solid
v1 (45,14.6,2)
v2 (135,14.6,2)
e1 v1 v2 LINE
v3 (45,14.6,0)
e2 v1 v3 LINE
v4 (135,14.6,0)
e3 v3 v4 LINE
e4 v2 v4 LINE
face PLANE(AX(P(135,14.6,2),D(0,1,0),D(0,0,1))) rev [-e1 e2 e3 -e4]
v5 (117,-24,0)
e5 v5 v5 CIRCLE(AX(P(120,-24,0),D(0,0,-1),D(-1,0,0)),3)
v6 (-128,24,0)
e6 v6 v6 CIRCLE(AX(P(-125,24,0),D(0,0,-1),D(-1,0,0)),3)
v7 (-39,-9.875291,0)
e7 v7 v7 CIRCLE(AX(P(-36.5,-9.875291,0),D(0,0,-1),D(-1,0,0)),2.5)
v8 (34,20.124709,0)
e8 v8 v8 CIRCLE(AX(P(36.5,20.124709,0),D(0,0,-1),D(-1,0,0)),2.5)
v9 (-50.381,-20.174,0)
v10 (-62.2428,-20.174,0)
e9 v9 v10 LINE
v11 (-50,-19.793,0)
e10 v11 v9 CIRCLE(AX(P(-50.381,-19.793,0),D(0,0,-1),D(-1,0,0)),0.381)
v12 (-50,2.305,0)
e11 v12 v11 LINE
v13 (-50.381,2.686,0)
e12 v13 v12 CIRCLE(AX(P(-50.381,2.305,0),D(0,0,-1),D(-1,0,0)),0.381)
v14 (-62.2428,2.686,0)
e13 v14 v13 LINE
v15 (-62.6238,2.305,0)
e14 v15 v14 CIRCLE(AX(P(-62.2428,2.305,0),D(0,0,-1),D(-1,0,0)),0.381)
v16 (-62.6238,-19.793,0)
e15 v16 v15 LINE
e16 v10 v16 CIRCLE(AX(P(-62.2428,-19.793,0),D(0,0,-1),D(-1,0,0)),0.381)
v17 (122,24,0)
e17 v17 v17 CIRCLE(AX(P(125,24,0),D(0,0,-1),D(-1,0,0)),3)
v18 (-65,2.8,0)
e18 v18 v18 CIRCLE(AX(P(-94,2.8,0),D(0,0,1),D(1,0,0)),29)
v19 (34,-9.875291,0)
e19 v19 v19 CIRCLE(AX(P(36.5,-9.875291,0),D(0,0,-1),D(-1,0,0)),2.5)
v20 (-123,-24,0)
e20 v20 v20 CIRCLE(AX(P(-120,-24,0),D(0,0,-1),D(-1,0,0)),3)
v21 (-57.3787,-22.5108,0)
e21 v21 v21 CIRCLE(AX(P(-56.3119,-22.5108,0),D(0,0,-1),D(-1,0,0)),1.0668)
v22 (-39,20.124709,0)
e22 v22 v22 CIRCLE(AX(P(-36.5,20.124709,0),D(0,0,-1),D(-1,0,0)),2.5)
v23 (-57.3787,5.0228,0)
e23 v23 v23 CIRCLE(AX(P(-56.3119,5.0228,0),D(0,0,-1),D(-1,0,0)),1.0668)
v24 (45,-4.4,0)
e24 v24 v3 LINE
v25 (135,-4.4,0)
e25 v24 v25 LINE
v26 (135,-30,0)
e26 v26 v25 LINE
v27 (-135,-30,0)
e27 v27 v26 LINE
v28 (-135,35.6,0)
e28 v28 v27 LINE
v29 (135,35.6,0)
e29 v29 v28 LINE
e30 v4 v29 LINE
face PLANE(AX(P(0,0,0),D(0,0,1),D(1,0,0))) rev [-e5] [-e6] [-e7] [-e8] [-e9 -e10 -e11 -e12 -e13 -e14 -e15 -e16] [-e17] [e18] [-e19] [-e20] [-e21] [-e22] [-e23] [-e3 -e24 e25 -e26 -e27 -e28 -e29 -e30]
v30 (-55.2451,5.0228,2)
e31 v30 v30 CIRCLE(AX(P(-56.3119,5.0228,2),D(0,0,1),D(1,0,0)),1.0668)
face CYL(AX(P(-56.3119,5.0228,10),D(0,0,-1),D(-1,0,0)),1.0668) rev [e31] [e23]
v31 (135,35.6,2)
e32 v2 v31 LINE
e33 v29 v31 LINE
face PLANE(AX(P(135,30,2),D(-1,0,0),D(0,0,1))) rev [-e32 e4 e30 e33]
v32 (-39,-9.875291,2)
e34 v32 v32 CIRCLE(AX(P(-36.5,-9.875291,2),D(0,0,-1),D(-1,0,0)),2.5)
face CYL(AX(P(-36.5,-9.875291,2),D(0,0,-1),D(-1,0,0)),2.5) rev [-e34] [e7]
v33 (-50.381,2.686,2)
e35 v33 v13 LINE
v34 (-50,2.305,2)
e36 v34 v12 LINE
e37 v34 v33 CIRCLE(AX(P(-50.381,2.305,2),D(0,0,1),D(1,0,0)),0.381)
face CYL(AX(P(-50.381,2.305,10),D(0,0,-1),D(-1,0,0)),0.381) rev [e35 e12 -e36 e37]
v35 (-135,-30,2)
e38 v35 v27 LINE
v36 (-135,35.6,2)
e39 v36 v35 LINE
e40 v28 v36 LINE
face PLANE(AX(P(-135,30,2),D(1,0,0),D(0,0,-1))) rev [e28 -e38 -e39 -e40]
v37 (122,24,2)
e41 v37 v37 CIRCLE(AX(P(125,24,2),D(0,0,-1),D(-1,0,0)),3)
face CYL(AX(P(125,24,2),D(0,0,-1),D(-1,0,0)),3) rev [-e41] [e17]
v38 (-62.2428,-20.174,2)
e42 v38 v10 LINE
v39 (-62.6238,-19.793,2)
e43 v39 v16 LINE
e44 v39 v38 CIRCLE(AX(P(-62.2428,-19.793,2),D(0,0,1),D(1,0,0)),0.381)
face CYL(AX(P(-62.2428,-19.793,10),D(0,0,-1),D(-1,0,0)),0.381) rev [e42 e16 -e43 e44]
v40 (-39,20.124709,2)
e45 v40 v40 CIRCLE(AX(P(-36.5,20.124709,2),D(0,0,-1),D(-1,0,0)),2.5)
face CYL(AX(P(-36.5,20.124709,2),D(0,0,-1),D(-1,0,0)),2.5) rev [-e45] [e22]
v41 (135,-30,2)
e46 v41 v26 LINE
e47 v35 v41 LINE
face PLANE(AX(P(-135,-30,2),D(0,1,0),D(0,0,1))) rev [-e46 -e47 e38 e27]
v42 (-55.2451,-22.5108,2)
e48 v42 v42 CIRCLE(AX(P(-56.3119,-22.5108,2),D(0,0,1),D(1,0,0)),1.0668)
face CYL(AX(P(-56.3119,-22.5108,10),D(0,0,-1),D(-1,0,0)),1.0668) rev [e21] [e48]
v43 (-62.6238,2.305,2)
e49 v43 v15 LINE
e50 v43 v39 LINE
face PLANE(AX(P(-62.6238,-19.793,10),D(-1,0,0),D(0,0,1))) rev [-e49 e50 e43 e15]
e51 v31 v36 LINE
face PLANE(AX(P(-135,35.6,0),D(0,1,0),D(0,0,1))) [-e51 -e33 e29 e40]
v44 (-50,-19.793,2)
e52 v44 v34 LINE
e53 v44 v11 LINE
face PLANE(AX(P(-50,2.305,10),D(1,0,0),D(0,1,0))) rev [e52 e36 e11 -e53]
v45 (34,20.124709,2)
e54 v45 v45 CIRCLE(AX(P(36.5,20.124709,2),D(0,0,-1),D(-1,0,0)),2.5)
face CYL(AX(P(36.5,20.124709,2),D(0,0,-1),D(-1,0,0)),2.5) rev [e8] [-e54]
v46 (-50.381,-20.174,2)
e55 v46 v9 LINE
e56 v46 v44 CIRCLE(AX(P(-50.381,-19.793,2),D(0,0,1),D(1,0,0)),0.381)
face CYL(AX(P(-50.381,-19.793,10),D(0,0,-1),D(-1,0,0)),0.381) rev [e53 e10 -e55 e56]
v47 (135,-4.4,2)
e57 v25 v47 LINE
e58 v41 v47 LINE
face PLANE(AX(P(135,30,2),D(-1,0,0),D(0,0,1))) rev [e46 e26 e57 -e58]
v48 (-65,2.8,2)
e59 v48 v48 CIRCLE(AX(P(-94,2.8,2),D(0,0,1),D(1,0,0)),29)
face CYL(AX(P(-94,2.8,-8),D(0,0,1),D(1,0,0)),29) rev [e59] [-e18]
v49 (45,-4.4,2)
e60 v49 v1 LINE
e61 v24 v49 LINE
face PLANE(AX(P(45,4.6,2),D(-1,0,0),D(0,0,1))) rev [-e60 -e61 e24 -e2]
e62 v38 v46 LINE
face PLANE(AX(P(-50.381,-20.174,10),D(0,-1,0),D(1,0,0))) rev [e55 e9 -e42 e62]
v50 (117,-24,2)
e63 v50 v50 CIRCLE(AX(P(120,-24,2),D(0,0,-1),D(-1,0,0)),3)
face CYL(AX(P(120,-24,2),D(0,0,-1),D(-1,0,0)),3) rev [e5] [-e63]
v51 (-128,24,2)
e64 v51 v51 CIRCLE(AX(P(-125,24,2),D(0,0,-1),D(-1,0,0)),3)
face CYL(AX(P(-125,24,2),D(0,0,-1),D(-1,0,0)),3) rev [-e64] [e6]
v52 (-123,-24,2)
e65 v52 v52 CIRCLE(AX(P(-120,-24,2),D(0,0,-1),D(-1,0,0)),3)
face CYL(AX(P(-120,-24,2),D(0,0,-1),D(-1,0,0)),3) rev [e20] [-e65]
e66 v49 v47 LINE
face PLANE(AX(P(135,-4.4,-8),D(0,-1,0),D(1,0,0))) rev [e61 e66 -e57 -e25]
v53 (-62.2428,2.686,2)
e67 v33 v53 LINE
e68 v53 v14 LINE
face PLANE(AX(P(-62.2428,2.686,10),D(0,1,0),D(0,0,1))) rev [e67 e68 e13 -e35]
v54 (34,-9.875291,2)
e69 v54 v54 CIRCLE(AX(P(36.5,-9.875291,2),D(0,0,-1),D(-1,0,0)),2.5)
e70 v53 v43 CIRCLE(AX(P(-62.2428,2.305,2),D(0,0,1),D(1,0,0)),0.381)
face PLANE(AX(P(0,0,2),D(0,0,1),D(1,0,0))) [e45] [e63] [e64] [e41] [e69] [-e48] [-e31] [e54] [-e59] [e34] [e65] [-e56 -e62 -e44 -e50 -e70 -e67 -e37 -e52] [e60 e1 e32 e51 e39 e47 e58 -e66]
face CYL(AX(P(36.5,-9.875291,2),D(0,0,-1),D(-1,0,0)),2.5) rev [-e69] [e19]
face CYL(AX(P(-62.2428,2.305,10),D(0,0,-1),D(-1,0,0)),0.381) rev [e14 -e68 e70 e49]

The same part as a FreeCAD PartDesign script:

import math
import FreeCAD as App
import Part
import Sketcher

doc = App.newDocument("Part")
body = doc.addObject("PartDesign::Body", "Body")

# Sketch on XY plane
sketch1 = body.newObject("Sketcher::SketchObject", "Sketch")
sketch1.AttachmentSupport = (doc.getObject("XY_Plane"), [""])
sketch1.MapMode = "FlatFace"
sketch1.addGeometry(Part.LineSegment(App.Vector(-135, 30, 0), App.Vector(-135, -30, 0)), False)
sketch1.addGeometry(Part.LineSegment(App.Vector(-135, -30, 0), App.Vector(135, -30, 0)), False)
sketch1.addGeometry(Part.LineSegment(App.Vector(135, -30, 0), App.Vector(135, 30, 0)), False)
sketch1.addGeometry(Part.LineSegment(App.Vector(135, 30, 0), App.Vector(-135, 30, 0)), False)
sketch1.addConstraint(Sketcher.Constraint("Coincident", 0, 2, 1, 1))
sketch1.addConstraint(Sketcher.Constraint("Coincident", 1, 2, 2, 1))
sketch1.addConstraint(Sketcher.Constraint("Coincident", 2, 2, 3, 1))
sketch1.addConstraint(Sketcher.Constraint("Coincident", 3, 2, 0, 1))
sketch1.addConstraint(Sketcher.Constraint("Vertical", 0))
sketch1.addConstraint(Sketcher.Constraint("Horizontal", 1))
sketch1.addConstraint(Sketcher.Constraint("Vertical", 2))
sketch1.addConstraint(Sketcher.Constraint("Horizontal", 3))
sketch1.addConstraint(Sketcher.Constraint("Symmetric", 0, 2, 2, 2, -1, 1))
sketch1.addConstraint(Sketcher.Constraint("DistanceX", 1, 1, 1, 2, 270.0))
sketch1.addConstraint(Sketcher.Constraint("DistanceY", 0, 2, 0, 1, 60.0))
pad1 = body.newObject("PartDesign::Pad", "Pad")
pad1.Profile = sketch1
pad1.Length = 2

# Sketch on XY plane
sketch2 = body.newObject("Sketcher::SketchObject", "Sketch001")
sketch2.AttachmentSupport = (doc.getObject("XY_Plane"), [""])
sketch2.MapMode = "FlatFace"
sketch2.AttachmentOffset = App.Placement(App.Vector(0, 0, 2), App.Rotation())
sketch2.addGeometry(Part.LineSegment(App.Vector(-135, 36, 0), App.Vector(-135, 30, 0)), False)
sketch2.addGeometry(Part.LineSegment(App.Vector(-135, 30, 0), App.Vector(135, 30, 0)), False)
sketch2.addGeometry(Part.LineSegment(App.Vector(135, 30, 0), App.Vector(135, 36, 0)), False)
sketch2.addGeometry(Part.LineSegment(App.Vector(135, 36, 0), App.Vector(-135, 36, 0)), False)
sketch2.addConstraint(Sketcher.Constraint("Coincident", 0, 2, 1, 1))
sketch2.addConstraint(Sketcher.Constraint("Coincident", 1, 2, 2, 1))
sketch2.addConstraint(Sketcher.Constraint("Coincident", 2, 2, 3, 1))
sketch2.addConstraint(Sketcher.Constraint("Coincident", 3, 2, 0, 1))
sketch2.addConstraint(Sketcher.Constraint("Vertical", 0))
sketch2.addConstraint(Sketcher.Constraint("Horizontal", 1))
sketch2.addConstraint(Sketcher.Constraint("Vertical", 2))
sketch2.addConstraint(Sketcher.Constraint("Horizontal", 3))
sketch2.addConstraint(Sketcher.Constraint("DistanceX", 1, 1, 1, 2, 270.0))
sketch2.addConstraint(Sketcher.Constraint("DistanceY", 0, 2, 0, 1, 5.6))
sketch2.addConstraint(Sketcher.Constraint("DistanceX", 0, 2, -1, 1, 135.0))
sketch2.addConstraint(Sketcher.Constraint("DistanceY", -1, 1, 0, 2, 30.0))
pad2 = body.newObject("PartDesign::Pad", "Pad001")
pad2.Profile = sketch2
pad2.Length = 2
pad2.Reversed = True

# Sketch on XY plane
sketch3 = body.newObject("Sketcher::SketchObject", "Sketch002")
sketch3.AttachmentSupport = (doc.getObject("XY_Plane"), [""])
sketch3.MapMode = "FlatFace"
sketch3.addGeometry(Part.Circle(App.Vector(36.5, 20.1, 0), App.Vector(0, 0, 1), 2.5), False)
sketch3.addGeometry(Part.Circle(App.Vector(36.5, -9.9, 0), App.Vector(0, 0, 1), 2.5), False)
sketch3.addGeometry(Part.Circle(App.Vector(-36.5, -9.9, 0), App.Vector(0, 0, 1), 2.5), False)
sketch3.addGeometry(Part.Circle(App.Vector(-36.5, 20.1, 0), App.Vector(0, 0, 1), 2.5), False)
sketch3.addGeometry(Part.Circle(App.Vector(-125, 24, 0), App.Vector(0, 0, 1), 3), False)
sketch3.addGeometry(Part.Circle(App.Vector(-120, -24, 0), App.Vector(0, 0, 1), 3), False)
sketch3.addGeometry(Part.Circle(App.Vector(125, 24, 0), App.Vector(0, 0, 1), 3), False)
sketch3.addGeometry(Part.Circle(App.Vector(120, -24, 0), App.Vector(0, 0, 1), 3), False)
sketch3.addConstraint(Sketcher.Constraint("Equal", 0, 1))
sketch3.addConstraint(Sketcher.Constraint("Equal", 1, 2))
sketch3.addConstraint(Sketcher.Constraint("Equal", 2, 3))
sketch3.addConstraint(Sketcher.Constraint("Equal", 4, 5))
sketch3.addConstraint(Sketcher.Constraint("Equal", 5, 6))
sketch3.addConstraint(Sketcher.Constraint("Equal", 6, 7))
sketch3.addConstraint(Sketcher.Constraint("Symmetric", 1, 3, 2, 3, -2))
sketch3.addConstraint(Sketcher.Constraint("Symmetric", 0, 3, 3, 3, -2))
sketch3.addConstraint(Sketcher.Constraint("Symmetric", 4, 3, 6, 3, -2))
sketch3.addConstraint(Sketcher.Constraint("Symmetric", 5, 3, 7, 3, -2))
sketch3.addConstraint(Sketcher.Constraint("Vertical", 0, 3, 1, 3))
sketch3.addConstraint(Sketcher.Constraint("Diameter", 0, 5.0))
sketch3.addConstraint(Sketcher.Constraint("Diameter", 4, 6.0))
sketch3.addConstraint(Sketcher.Constraint("DistanceX", 4, 3, -1, 1, 125.0))
sketch3.addConstraint(Sketcher.Constraint("DistanceY", -1, 1, 4, 3, 24.0))
sketch3.addConstraint(Sketcher.Constraint("DistanceX", 5, 3, -1, 1, 120.0))
sketch3.addConstraint(Sketcher.Constraint("DistanceY", 5, 3, -1, 1, 24.0))
sketch3.addConstraint(Sketcher.Constraint("DistanceY", 1, 3, 0, 3, 30.0))
sketch3.addConstraint(Sketcher.Constraint("DistanceX", 2, 3, 1, 3, 73.0))
sketch3.addConstraint(Sketcher.Constraint("DistanceY", -1, 1, 0, 3, 20.124709))
pocket1 = body.newObject("PartDesign::Pocket", "Pocket")
pocket1.Profile = sketch3
pocket1.Type = "ThroughAll"
pocket1.Reversed = True

# Sketch on XY plane
sketch4 = body.newObject("Sketcher::SketchObject", "Sketch003")
sketch4.AttachmentSupport = (doc.getObject("XY_Plane"), [""])
sketch4.MapMode = "FlatFace"
sketch4.addGeometry(Part.LineSegment(App.Vector(135, 15, 0), App.Vector(135, 5, 0)), False)
sketch4.addGeometry(Part.LineSegment(App.Vector(135, 5, 0), App.Vector(45, 5, 0)), False)
sketch4.addGeometry(Part.LineSegment(App.Vector(45, 5, 0), App.Vector(45, 15, 0)), False)
sketch4.addGeometry(Part.LineSegment(App.Vector(45, 15, 0), App.Vector(135, 15, 0)), False)
sketch4.addConstraint(Sketcher.Constraint("Coincident", 0, 2, 1, 1))
sketch4.addConstraint(Sketcher.Constraint("Coincident", 1, 2, 2, 1))
sketch4.addConstraint(Sketcher.Constraint("Coincident", 2, 2, 3, 1))
sketch4.addConstraint(Sketcher.Constraint("Coincident", 3, 2, 0, 1))
sketch4.addConstraint(Sketcher.Constraint("Vertical", 0))
sketch4.addConstraint(Sketcher.Constraint("Horizontal", 1))
sketch4.addConstraint(Sketcher.Constraint("Vertical", 2))
sketch4.addConstraint(Sketcher.Constraint("Horizontal", 3))
sketch4.addConstraint(Sketcher.Constraint("DistanceX", 1, 2, 1, 1, 90.0))
sketch4.addConstraint(Sketcher.Constraint("DistanceY", 0, 2, 0, 1, 10.0))
sketch4.addConstraint(Sketcher.Constraint("DistanceX", -1, 1, 0, 2, 135.0))
sketch4.addConstraint(Sketcher.Constraint("DistanceY", -1, 1, 0, 2, 4.6))
pocket2 = body.newObject("PartDesign::Pocket", "Pocket001")
pocket2.Profile = sketch4
pocket2.Type = "ThroughAll"
pocket2.Reversed = True

# Sketch on XY plane
sketch5 = body.newObject("Sketcher::SketchObject", "Sketch004")
sketch5.AttachmentSupport = (doc.getObject("XY_Plane"), [""])
sketch5.MapMode = "FlatFace"
sketch5.AttachmentOffset = App.Placement(App.Vector(0, 0, 2), App.Rotation())
sketch5.addGeometry(Part.Circle(App.Vector(-94, 3, 0), App.Vector(0, 0, 1), 29), False)
sketch5.addConstraint(Sketcher.Constraint("Diameter", 0, 58.0))
sketch5.addConstraint(Sketcher.Constraint("DistanceX", 0, 3, -1, 1, 94.0))
sketch5.addConstraint(Sketcher.Constraint("DistanceY", -1, 1, 0, 3, 2.8))
pocket3 = body.newObject("PartDesign::Pocket", "Pocket002")
pocket3.Profile = sketch5
pocket3.Length = 10

# Sketch on XY plane
sketch6 = body.newObject("Sketcher::SketchObject", "Sketch005")
sketch6.AttachmentSupport = (doc.getObject("XY_Plane"), [""])
sketch6.MapMode = "FlatFace"
sketch6.addGeometry(Part.Circle(App.Vector(-56.31, -22.51, 0), App.Vector(0, 0, 1), 1.07), False)
sketch6.addGeometry(Part.Circle(App.Vector(-56.31, 5.02, 0), App.Vector(0, 0, 1), 1.07), False)
sketch6.addGeometry(Part.LineSegment(App.Vector(-62.62, -19.79, 0), App.Vector(-62.62, 2.31, 0)), False)
sketch6.addGeometry(Part.ArcOfCircle(Part.Circle(App.Vector(-62.24, 2.31, 0), App.Vector(0, 0, 1), 0.38), math.radians(90), math.radians(180)), False)
sketch6.addGeometry(Part.LineSegment(App.Vector(-62.24, 2.69, 0), App.Vector(-50.38, 2.69, 0)), False)
sketch6.addGeometry(Part.ArcOfCircle(Part.Circle(App.Vector(-50.38, 2.31, 0), App.Vector(0, 0, 1), 0.38), math.radians(0), math.radians(90)), False)
sketch6.addGeometry(Part.LineSegment(App.Vector(-50, 2.31, 0), App.Vector(-50, -19.79, 0)), False)
sketch6.addGeometry(Part.ArcOfCircle(Part.Circle(App.Vector(-50.38, -19.79, 0), App.Vector(0, 0, 1), 0.38), math.radians(-90), math.radians(0)), False)
sketch6.addGeometry(Part.LineSegment(App.Vector(-50.38, -20.17, 0), App.Vector(-62.24, -20.17, 0)), False)
sketch6.addGeometry(Part.ArcOfCircle(Part.Circle(App.Vector(-62.24, -19.79, 0), App.Vector(0, 0, 1), 0.38), math.radians(180), math.radians(270)), False)
sketch6.addConstraint(Sketcher.Constraint("Tangent", 2, 2, 3, 2))
sketch6.addConstraint(Sketcher.Constraint("Tangent", 3, 1, 4, 1))
sketch6.addConstraint(Sketcher.Constraint("Tangent", 4, 2, 5, 2))
sketch6.addConstraint(Sketcher.Constraint("Tangent", 5, 1, 6, 1))
sketch6.addConstraint(Sketcher.Constraint("Tangent", 6, 2, 7, 2))
sketch6.addConstraint(Sketcher.Constraint("Tangent", 7, 1, 8, 1))
sketch6.addConstraint(Sketcher.Constraint("Tangent", 8, 2, 9, 2))
sketch6.addConstraint(Sketcher.Constraint("Tangent", 9, 1, 2, 1))
sketch6.addConstraint(Sketcher.Constraint("Vertical", 2))
sketch6.addConstraint(Sketcher.Constraint("Horizontal", 4))
sketch6.addConstraint(Sketcher.Constraint("Vertical", 6))
sketch6.addConstraint(Sketcher.Constraint("Horizontal", 8))
sketch6.addConstraint(Sketcher.Constraint("Equal", 0, 1))
sketch6.addConstraint(Sketcher.Constraint("Equal", 3, 5))
sketch6.addConstraint(Sketcher.Constraint("Equal", 5, 7))
sketch6.addConstraint(Sketcher.Constraint("Equal", 7, 9))
sketch6.addConstraint(Sketcher.Constraint("Vertical", 0, 3, 1, 3))
sketch6.addConstraint(Sketcher.Constraint("DistanceX", 5, 1, -1, 1, 50.0))
sketch6.addConstraint(Sketcher.Constraint("Radius", 3, 0.381))
sketch6.addConstraint(Sketcher.Constraint("Diameter", 0, 2.1336))
sketch6.addConstraint(Sketcher.Constraint("DistanceY", 2, 1, 2, 2, 22.098))
sketch6.addConstraint(Sketcher.Constraint("DistanceX", 4, 1, 4, 2, 11.8618))
sketch6.addConstraint(Sketcher.Constraint("DistanceY", -1, 1, 3, 3, 2.305))
sketch6.addConstraint(Sketcher.Constraint("DistanceX", 0, 3, -1, 1, 56.3119))
sketch6.addConstraint(Sketcher.Constraint("DistanceY", 0, 3, -1, 1, 22.5108))
sketch6.addConstraint(Sketcher.Constraint("DistanceY", -1, 1, 1, 3, 5.0228))
pocket4 = body.newObject("PartDesign::Pocket", "Pocket003")
pocket4.Profile = sketch6
pocket4.Length = 10
pocket4.Reversed = True

# Sketch on XY plane
sketch7 = body.newObject("Sketcher::SketchObject", "Sketch006")
sketch7.AttachmentSupport = (doc.getObject("XY_Plane"), [""])
sketch7.MapMode = "FlatFace"
sketch7.AttachmentOffset = App.Placement(App.Vector(0, 0, 2), App.Rotation())
sketch7.addGeometry(Part.LineSegment(App.Vector(45, 5, 0), App.Vector(45, -4, 0)), False)
sketch7.addGeometry(Part.LineSegment(App.Vector(45, -4, 0), App.Vector(135, -4, 0)), False)
sketch7.addGeometry(Part.LineSegment(App.Vector(135, -4, 0), App.Vector(135, 5, 0)), False)
sketch7.addGeometry(Part.LineSegment(App.Vector(135, 5, 0), App.Vector(45, 5, 0)), False)
sketch7.addConstraint(Sketcher.Constraint("Coincident", 0, 2, 1, 1))
sketch7.addConstraint(Sketcher.Constraint("Coincident", 1, 2, 2, 1))
sketch7.addConstraint(Sketcher.Constraint("Coincident", 2, 2, 3, 1))
sketch7.addConstraint(Sketcher.Constraint("Coincident", 3, 2, 0, 1))
sketch7.addConstraint(Sketcher.Constraint("Vertical", 0))
sketch7.addConstraint(Sketcher.Constraint("Horizontal", 1))
sketch7.addConstraint(Sketcher.Constraint("Vertical", 2))
sketch7.addConstraint(Sketcher.Constraint("Horizontal", 3))
sketch7.addConstraint(Sketcher.Constraint("DistanceX", 1, 1, 1, 2, 90.0))
sketch7.addConstraint(Sketcher.Constraint("DistanceY", 0, 2, 0, 1, 9.0))
sketch7.addConstraint(Sketcher.Constraint("DistanceX", -1, 1, 0, 2, 45.0))
sketch7.addConstraint(Sketcher.Constraint("DistanceY", 0, 2, -1, 1, 4.4))
pocket5 = body.newObject("PartDesign::Pocket", "Pocket004")
pocket5.Profile = sketch7
pocket5.Length = 10

doc.recompute()
